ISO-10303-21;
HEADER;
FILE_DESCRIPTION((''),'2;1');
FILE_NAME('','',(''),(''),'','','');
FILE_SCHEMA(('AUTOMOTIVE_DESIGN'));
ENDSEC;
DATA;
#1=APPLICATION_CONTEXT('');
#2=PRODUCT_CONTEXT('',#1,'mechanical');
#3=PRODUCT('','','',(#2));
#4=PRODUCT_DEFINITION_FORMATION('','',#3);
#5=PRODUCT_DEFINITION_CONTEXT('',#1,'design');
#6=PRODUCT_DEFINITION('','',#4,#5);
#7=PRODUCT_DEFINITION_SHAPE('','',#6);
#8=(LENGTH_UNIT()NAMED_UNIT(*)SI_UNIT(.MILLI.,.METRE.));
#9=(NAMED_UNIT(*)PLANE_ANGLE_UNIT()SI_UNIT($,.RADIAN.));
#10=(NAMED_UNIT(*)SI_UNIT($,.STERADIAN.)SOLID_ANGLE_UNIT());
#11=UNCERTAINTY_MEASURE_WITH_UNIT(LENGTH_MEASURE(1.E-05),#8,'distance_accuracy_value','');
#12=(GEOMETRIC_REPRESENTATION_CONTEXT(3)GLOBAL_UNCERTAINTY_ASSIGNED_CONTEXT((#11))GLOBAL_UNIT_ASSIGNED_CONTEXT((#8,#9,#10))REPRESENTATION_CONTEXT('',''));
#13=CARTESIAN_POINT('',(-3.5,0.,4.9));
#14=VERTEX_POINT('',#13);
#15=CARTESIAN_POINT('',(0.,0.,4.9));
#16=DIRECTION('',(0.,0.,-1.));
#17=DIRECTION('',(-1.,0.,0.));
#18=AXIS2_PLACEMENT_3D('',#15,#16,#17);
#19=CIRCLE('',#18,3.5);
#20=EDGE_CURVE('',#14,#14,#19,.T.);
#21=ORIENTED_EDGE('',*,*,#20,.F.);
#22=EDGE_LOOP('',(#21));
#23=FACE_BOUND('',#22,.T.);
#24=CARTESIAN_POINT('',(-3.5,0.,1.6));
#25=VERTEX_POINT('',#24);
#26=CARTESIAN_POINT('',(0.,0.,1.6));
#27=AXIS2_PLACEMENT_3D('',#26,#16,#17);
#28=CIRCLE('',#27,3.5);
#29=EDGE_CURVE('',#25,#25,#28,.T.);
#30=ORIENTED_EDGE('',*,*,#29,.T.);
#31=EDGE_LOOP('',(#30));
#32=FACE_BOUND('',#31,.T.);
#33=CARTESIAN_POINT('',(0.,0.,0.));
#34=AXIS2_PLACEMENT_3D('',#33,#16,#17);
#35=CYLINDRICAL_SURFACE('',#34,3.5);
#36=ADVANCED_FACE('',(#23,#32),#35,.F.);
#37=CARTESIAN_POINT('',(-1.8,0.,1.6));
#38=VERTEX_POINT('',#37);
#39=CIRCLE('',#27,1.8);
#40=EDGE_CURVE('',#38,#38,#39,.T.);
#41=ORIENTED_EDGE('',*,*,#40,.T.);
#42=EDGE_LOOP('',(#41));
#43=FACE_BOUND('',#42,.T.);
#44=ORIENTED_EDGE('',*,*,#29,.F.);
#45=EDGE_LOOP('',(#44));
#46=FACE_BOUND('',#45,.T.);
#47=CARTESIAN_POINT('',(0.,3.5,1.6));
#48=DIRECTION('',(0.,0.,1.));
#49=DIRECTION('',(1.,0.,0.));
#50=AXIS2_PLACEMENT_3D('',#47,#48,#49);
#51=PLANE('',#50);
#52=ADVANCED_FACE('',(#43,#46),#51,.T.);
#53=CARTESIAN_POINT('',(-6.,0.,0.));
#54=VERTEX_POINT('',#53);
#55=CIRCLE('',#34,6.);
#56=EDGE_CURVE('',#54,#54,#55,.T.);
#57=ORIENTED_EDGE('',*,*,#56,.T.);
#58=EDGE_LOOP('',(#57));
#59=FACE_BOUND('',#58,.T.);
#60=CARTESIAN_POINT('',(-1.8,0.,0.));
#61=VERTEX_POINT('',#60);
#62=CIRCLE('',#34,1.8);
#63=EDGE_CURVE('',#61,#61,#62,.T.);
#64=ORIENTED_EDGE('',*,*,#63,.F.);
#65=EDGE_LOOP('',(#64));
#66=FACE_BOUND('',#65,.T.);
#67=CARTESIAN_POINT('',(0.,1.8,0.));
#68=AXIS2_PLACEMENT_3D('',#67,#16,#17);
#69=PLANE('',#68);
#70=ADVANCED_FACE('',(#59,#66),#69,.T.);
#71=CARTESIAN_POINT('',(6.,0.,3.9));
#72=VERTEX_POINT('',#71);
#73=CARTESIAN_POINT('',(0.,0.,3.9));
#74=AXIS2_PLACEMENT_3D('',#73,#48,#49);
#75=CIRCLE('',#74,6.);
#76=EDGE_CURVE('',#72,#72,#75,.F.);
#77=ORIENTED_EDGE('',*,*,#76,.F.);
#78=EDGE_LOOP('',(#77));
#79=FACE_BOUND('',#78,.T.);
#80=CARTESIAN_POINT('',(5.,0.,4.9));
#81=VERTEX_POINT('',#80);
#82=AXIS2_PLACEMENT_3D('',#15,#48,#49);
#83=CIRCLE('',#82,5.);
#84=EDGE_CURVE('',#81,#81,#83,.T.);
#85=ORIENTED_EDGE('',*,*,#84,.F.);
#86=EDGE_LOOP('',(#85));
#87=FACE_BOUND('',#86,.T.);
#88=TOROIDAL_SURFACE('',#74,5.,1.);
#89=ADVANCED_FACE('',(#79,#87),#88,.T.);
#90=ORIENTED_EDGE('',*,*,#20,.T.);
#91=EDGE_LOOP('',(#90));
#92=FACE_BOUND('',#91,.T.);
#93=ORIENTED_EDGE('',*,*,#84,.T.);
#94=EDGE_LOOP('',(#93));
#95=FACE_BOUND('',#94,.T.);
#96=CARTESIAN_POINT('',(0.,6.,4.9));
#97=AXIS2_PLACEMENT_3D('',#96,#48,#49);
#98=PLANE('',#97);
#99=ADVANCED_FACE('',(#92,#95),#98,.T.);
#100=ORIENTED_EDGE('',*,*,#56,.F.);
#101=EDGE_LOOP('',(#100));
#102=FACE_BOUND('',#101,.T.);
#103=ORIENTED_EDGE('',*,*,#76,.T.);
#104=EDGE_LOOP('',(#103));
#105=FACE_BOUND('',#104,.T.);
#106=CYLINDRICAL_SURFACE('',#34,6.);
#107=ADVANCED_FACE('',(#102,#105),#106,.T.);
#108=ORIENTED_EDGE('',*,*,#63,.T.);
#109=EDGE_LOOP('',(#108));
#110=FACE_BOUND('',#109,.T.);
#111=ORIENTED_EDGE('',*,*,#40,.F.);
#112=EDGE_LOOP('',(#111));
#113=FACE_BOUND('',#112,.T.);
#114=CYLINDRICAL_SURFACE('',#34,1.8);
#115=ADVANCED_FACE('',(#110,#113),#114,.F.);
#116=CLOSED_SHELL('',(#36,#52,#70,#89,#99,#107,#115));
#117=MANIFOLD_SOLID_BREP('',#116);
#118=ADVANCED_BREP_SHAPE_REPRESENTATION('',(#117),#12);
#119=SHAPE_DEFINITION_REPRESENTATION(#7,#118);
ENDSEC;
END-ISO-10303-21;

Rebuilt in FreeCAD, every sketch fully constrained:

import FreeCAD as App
import Part
import Sketcher


def edges_at(feature, points):
    """Names of the edges that pass closest to the given points."""
    edges = feature.Shape.Edges
    near = lambda p: min(range(len(edges)), key=lambda i: edges[i].distToShape(Part.Vertex(*p))[0])
    return sorted({f"Edge{near(p) + 1}" for p in points})


def add_polygon(sketch, points):
    """Adds a closed chain of lines whose ends are joined by coincident constraints."""
    first, n = sketch.GeometryCount, len(points)
    for a, b in zip(points, points[1:] + points[:1]):
        sketch.addGeometry(Part.LineSegment(App.Vector(*a, 0), App.Vector(*b, 0)), False)
    for i in range(n):
        sketch.addConstraint(Sketcher.Constraint("Coincident", first + i, 2, first + (i + 1) % n, 1))

doc = App.newDocument("Part")
params = doc.addObject("Spreadsheet::Sheet", "Params")
for row, (alias, value) in enumerate([
    ("sketch1_width", "4.2 mm"),
    ("sketch1_width2", "2.5 mm"),
    ("sketch1_height", "4.9 mm"),
    ("sketch1_height2", "3.3 mm"),
    ("revolution_angle", "360 deg"),
    ("fillet_radius", "1 mm"),
], start=1):
    params.set(f"A{row}", alias)
    params.set(f"B{row}", "=" + value)
    params.setAlias(f"B{row}", alias)

body = doc.addObject("PartDesign::Body", "Body")

# Sketch on YZ plane
sketch1 = doc.addObject("Sketcher::SketchObject", "Sketch")
body.addObject(sketch1)
sketch1.AttachmentSupport = (doc.YZ_Plane, [""])
sketch1.MapMode = "FlatFace"
add_polygon(sketch1, [(1.8, 0), (6, 0), (6, 4.9), (3.5, 4.9), (3.5, 1.6), (1.8, 1.6)])  # lines 0-5
sketch1.addConstraint([
    Sketcher.Constraint("Horizontal", 0),
    Sketcher.Constraint("Vertical", 1),
    Sketcher.Constraint("Horizontal", 2),
    Sketcher.Constraint("Vertical", 3),
    Sketcher.Constraint("Horizontal", 4),
    Sketcher.Constraint("Vertical", 5),
    Sketcher.Constraint("PointOnObject", 0, 2, -1),
    Sketcher.Constraint("DistanceX", 0, 1, 0, 2, 4.2),
    Sketcher.Constraint("DistanceX", 2, 2, 2, 1, 2.5),
    Sketcher.Constraint("DistanceY", 1, 1, 1, 2, 4.9),
    Sketcher.Constraint("DistanceY", 3, 2, 3, 1, 3.3),
    Sketcher.Constraint("DistanceX", -1, 1, 0, 2, 6.0),
])
sketch1.setExpression("Constraints[13]", "Params.sketch1_width")
sketch1.setExpression("Constraints[14]", "Params.sketch1_width2")
sketch1.setExpression("Constraints[15]", "Params.sketch1_height")
sketch1.setExpression("Constraints[16]", "Params.sketch1_height2")
revolution = doc.addObject("PartDesign::Revolution", "Revolution")
body.addObject(revolution)
revolution.Profile = sketch1
revolution.ReferenceAxis = (sketch1, ["V_Axis"])
revolution.setExpression("Angle", "Params.revolution_angle")
doc.recompute()

fillet = doc.addObject("PartDesign::Fillet", "Fillet")
body.addObject(fillet)
fillet.Base = (revolution, edges_at(revolution, [(0, -6, 4.9)]))
fillet.setExpression("Radius", "Params.fillet_radius")

doc.recompute()
